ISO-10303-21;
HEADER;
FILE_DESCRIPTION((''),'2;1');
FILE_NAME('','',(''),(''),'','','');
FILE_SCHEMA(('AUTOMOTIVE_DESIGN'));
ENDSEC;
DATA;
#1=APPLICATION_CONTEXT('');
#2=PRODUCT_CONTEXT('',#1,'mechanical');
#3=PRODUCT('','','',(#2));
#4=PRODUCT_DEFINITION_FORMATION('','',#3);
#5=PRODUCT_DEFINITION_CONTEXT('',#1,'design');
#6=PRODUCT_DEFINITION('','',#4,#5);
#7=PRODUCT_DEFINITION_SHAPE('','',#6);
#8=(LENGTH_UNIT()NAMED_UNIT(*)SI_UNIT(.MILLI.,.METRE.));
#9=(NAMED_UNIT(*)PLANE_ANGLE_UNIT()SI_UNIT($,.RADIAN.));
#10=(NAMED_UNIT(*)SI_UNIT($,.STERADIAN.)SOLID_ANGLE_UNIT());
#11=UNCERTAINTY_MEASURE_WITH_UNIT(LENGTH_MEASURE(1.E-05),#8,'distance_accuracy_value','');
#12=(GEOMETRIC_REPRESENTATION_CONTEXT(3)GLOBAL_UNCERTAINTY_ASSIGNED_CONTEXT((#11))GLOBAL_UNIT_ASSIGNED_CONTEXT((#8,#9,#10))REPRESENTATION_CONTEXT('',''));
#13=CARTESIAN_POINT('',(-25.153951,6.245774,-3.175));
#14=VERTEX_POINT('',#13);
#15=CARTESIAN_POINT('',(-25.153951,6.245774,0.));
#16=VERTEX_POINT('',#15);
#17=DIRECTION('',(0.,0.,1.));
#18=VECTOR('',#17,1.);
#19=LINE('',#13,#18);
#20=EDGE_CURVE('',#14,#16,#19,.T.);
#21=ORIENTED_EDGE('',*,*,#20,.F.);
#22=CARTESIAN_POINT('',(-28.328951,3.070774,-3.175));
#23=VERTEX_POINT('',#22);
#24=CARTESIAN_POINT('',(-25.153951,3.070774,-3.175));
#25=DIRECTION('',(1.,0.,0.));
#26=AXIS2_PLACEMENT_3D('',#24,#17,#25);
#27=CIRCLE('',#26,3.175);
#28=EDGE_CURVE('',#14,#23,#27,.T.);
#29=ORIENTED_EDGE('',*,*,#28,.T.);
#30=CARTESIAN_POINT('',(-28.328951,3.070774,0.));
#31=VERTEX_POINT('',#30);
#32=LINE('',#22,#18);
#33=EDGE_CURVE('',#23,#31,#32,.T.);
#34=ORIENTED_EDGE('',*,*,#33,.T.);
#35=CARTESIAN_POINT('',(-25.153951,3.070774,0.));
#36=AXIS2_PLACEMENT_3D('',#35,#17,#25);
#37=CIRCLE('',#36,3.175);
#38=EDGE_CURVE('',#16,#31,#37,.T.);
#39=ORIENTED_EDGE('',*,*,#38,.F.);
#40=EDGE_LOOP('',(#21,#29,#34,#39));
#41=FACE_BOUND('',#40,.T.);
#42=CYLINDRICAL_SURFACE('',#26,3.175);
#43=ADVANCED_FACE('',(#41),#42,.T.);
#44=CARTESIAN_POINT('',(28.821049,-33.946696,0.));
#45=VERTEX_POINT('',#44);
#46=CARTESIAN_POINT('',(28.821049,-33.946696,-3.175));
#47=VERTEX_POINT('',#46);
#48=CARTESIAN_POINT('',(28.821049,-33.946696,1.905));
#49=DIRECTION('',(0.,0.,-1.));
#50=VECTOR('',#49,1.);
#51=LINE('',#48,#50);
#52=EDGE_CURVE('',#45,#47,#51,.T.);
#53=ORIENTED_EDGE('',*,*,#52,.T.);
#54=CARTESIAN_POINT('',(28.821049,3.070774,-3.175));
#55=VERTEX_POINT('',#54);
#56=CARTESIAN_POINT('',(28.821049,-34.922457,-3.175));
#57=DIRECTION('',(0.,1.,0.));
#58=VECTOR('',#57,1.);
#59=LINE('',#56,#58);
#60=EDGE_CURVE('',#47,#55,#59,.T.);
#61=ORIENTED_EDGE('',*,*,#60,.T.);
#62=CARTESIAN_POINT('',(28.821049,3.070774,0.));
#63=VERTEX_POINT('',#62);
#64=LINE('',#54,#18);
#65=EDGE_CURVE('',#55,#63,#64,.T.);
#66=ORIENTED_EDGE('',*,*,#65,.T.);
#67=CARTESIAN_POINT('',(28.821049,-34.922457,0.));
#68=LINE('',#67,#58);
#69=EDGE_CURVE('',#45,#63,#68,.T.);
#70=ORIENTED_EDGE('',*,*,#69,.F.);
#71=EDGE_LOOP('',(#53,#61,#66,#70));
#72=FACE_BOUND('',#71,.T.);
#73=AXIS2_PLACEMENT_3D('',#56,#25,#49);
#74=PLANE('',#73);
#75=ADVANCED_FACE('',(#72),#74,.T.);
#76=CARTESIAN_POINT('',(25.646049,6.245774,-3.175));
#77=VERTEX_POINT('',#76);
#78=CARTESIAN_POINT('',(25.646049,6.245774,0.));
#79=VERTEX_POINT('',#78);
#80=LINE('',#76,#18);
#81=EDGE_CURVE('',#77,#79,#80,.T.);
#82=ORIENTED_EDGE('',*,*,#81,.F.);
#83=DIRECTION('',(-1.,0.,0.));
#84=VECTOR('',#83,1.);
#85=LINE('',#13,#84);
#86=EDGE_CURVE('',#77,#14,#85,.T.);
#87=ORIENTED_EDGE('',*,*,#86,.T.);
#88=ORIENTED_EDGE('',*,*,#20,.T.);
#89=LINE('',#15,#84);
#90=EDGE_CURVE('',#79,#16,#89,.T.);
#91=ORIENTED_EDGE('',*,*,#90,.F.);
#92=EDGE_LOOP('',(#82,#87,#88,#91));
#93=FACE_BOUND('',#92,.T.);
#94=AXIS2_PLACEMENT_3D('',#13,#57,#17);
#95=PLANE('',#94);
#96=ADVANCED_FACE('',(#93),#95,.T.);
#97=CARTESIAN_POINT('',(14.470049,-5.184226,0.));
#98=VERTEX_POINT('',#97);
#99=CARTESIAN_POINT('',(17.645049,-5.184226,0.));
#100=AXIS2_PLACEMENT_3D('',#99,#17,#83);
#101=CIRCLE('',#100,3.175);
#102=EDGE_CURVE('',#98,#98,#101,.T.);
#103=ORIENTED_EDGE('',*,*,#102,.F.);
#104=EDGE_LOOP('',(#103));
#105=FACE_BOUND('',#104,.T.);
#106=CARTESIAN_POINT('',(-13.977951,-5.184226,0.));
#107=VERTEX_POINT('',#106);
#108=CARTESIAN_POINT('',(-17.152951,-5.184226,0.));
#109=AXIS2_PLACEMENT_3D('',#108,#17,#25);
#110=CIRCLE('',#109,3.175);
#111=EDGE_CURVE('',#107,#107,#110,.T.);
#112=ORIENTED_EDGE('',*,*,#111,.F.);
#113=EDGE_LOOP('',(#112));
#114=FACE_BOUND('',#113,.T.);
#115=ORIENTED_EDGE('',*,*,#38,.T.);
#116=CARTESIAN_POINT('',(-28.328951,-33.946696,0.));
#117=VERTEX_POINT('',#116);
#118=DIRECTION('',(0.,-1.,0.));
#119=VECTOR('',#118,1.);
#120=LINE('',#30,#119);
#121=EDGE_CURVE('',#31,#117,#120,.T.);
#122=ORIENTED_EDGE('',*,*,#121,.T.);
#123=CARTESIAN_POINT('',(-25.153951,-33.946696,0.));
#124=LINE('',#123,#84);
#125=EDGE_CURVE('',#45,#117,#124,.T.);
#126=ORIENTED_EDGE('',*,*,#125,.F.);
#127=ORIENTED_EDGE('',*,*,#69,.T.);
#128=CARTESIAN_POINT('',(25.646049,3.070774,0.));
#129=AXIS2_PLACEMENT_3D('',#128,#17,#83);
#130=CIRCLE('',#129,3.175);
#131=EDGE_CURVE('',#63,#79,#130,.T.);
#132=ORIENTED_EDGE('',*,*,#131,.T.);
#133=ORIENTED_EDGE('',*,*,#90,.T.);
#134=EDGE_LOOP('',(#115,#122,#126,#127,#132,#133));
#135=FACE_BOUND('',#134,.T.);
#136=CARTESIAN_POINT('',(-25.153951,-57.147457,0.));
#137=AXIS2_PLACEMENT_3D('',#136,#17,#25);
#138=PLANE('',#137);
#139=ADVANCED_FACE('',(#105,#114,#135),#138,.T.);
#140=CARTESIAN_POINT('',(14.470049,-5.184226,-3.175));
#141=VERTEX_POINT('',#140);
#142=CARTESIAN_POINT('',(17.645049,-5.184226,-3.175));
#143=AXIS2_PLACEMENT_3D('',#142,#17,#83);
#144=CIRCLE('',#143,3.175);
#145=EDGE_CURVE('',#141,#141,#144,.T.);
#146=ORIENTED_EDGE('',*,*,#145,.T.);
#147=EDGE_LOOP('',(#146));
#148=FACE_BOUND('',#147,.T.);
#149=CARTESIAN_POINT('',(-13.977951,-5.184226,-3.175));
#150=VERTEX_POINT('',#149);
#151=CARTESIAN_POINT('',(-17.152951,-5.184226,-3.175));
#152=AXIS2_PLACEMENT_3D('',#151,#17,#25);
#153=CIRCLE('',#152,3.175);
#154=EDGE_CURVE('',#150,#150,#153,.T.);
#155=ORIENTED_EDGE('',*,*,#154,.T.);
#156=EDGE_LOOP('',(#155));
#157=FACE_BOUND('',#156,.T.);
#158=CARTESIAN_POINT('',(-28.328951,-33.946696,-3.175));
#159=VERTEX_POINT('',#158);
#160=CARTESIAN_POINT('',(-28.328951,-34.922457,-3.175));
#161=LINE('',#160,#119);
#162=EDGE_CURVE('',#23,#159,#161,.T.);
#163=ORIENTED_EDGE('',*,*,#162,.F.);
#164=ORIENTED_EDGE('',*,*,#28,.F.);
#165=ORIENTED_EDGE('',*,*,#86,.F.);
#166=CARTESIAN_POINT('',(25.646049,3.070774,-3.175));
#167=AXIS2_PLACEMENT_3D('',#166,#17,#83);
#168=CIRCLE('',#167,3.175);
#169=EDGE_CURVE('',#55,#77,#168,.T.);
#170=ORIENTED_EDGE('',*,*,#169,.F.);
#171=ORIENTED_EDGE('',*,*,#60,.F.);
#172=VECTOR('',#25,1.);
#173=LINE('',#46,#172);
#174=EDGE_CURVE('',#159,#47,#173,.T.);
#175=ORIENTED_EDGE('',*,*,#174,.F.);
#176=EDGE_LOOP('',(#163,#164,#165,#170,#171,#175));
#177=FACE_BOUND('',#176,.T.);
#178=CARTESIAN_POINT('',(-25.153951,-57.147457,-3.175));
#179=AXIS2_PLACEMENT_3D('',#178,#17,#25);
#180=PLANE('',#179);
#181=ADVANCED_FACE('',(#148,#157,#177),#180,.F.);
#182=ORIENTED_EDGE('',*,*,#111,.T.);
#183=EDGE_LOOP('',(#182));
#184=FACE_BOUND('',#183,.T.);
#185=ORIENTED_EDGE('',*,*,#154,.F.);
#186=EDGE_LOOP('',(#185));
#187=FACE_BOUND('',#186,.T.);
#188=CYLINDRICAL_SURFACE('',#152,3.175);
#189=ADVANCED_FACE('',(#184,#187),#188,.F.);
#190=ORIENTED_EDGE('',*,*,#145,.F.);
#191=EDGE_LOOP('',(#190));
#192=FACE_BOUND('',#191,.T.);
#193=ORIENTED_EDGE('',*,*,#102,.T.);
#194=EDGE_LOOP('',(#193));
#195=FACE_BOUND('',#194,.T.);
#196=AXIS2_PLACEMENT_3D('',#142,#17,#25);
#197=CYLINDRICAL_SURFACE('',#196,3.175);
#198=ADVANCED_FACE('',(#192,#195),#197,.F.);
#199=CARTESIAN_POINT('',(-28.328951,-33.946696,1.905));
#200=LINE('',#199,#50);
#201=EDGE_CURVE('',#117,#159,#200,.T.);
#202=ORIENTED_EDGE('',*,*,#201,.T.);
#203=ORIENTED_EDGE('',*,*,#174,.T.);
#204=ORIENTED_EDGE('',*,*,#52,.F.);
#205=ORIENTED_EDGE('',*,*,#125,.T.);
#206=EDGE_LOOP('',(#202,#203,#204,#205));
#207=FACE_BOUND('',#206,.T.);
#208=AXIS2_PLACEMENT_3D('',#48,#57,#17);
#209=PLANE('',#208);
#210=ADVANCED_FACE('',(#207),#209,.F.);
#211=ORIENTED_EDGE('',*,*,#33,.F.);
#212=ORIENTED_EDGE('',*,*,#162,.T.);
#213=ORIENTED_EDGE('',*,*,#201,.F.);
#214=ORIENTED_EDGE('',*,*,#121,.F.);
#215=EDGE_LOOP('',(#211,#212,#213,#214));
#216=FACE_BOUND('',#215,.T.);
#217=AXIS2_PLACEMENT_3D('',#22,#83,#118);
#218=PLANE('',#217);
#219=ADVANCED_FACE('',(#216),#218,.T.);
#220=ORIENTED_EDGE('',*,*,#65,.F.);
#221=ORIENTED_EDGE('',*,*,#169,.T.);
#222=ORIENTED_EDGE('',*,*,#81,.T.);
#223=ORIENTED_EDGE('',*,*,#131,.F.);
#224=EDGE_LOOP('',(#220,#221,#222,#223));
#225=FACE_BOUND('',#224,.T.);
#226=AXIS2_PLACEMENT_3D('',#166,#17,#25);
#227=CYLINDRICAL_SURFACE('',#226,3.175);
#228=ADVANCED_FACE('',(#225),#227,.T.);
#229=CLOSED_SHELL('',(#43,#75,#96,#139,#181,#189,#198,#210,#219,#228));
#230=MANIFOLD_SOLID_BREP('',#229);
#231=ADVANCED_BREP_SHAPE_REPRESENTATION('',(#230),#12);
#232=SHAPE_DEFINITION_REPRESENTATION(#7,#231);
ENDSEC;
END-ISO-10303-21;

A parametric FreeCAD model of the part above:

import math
import FreeCAD as App
import Part
import Sketcher
Q = App.Units.Quantity

doc = App.newDocument("Part")
body = doc.addObject("PartDesign::Body", "Body")

sketch1 = body.newObject("Sketcher::SketchObject", "Sketch")
sketch1.AttachmentSupport = (doc.getObject("XY_Plane"), [""])
sketch1.MapMode = "FlatFace"
sketch1.addGeometry([
    Part.LineSegment(App.Vector(-28.3, 3.1, 0), App.Vector(-28.3, -57.1, 0)),
    Part.ArcOfCircle(Part.Circle(App.Vector(-25.2, -57.1, 0), App.Vector(0, 0, 1), 3.2), math.radians(-180), math.radians(-90)),
    Part.LineSegment(App.Vector(-25.2, -60.3, 0), App.Vector(25.6, -60.3, 0)),
    Part.ArcOfCircle(Part.Circle(App.Vector(25.6, -57.1, 0), App.Vector(0, 0, 1), 3.2), math.radians(-90), math.radians(0)),
    Part.LineSegment(App.Vector(28.8, -57.1, 0), App.Vector(28.8, 3.1, 0)),
    Part.ArcOfCircle(Part.Circle(App.Vector(25.6, 3.1, 0), App.Vector(0, 0, 1), 3.2), math.radians(0), math.radians(90)),
    Part.LineSegment(App.Vector(25.6, 6.2, 0), App.Vector(-25.2, 6.2, 0)),
    Part.ArcOfCircle(Part.Circle(App.Vector(-25.2, 3.1, 0), App.Vector(0, 0, 1), 3.2), math.radians(90), math.radians(180)),
], False)
sketch1.addConstraint([
    Sketcher.Constraint("Tangent", 0, 2, 1, 1),
    Sketcher.Constraint("Tangent", 1, 2, 2, 1),
    Sketcher.Constraint("Tangent", 2, 2, 3, 1),
    Sketcher.Constraint("Tangent", 3, 2, 4, 1),
    Sketcher.Constraint("Tangent", 4, 2, 5, 1),
    Sketcher.Constraint("Tangent", 5, 2, 6, 1),
    Sketcher.Constraint("Tangent", 6, 2, 7, 1),
    Sketcher.Constraint("Tangent", 7, 2, 0, 1),
    Sketcher.Constraint("Vertical", 0),
    Sketcher.Constraint("Horizontal", 2),
    Sketcher.Constraint("Vertical", 4),
    Sketcher.Constraint("Horizontal", 6),
    Sketcher.Constraint("Equal", 1, 3),
    Sketcher.Constraint("Equal", 3, 5),
    Sketcher.Constraint("Equal", 5, 7),
    Sketcher.Constraint("DistanceX", 2, 1, 2, 2, Q("2 in")),
    Sketcher.Constraint("Radius", 1, Q("0.125 in")),
    Sketcher.Constraint("DistanceY", 1, 3, -1, 1, Q("2.2498999 in")),
    Sketcher.Constraint("DistanceY", 0, 2, 0, 1, 60.21823),
    Sketcher.Constraint("DistanceX", 1, 3, -1, 1, 25.153951),
])
pad1 = body.newObject("PartDesign::Pad", "Pad")
pad1.Profile = sketch1
pad1.Length = Q("0.125 in")
pad1.Reversed = True

sketch2 = body.newObject("Sketcher::SketchObject", "Sketch001")
sketch2.AttachmentSupport = (doc.getObject("XY_Plane"), [""])
sketch2.MapMode = "FlatFace"
sketch2.addGeometry([
    Part.Circle(App.Vector(-17.2, -5.2, 0), App.Vector(0, 0, 1), 3.2),
    Part.Circle(App.Vector(17.6, -5.2, 0), App.Vector(0, 0, 1), 3.2),
], False)
sketch2.addConstraint([
    Sketcher.Constraint("Equal", 0, 1),
    Sketcher.Constraint("Horizontal", 0, 3, 1, 3),
    Sketcher.Constraint("Diameter", 0, Q("0.25 in")),
    Sketcher.Constraint("DistanceX", 0, 3, 1, 3, Q("1.37 in")),
    Sketcher.Constraint("DistanceX", 0, 3, -1, 1, 17.152951),
    Sketcher.Constraint("DistanceY", 0, 3, -1, 1, 5.184226),
])
pocket1 = body.newObject("PartDesign::Pocket", "Pocket")
pocket1.Profile = sketch2
pocket1.Type = "ThroughAll"

sketch3 = body.newObject("Sketcher::SketchObject", "Sketch002")
sketch3.AttachmentSupport = (doc.getObject("XY_Plane"), [""])
sketch3.MapMode = "FlatFace"
sketch3.AttachmentOffset = App.Placement(App.Vector(0, 0, -0.125 * 25.4), App.Rotation())
sketch3.addGeometry([
    Part.LineSegment(App.Vector(29, -34, 0), App.Vector(29, -63, 0)),
    Part.LineSegment(App.Vector(29, -63, 0), App.Vector(-28, -63, 0)),
    Part.LineSegment(App.Vector(-28, -63, 0), App.Vector(-28, -34, 0)),
    Part.LineSegment(App.Vector(-28, -34, 0), App.Vector(29, -34, 0)),
], False)
sketch3.addConstraint([
    Sketcher.Constraint("Coincident", 0, 2, 1, 1),
    Sketcher.Constraint("Coincident", 1, 2, 2, 1),
    Sketcher.Constraint("Coincident", 2, 2, 3, 1),
    Sketcher.Constraint("Coincident", 3, 2, 0, 1),
    Sketcher.Constraint("Vertical", 0),
    Sketcher.Constraint("Horizontal", 1),
    Sketcher.Constraint("Vertical", 2),
    Sketcher.Constraint("Horizontal", 3),
    Sketcher.Constraint("DistanceX", 1, 2, 1, 1, Q("2.25 in")),
    Sketcher.Constraint("DistanceY", 0, 2, 0, 1, 29.175718),
    Sketcher.Constraint("DistanceX", -1, 1, 0, 2, 28.821049),
    Sketcher.Constraint("DistanceY", 0, 2, -1, 1, 63.122414),
])
pocket2 = body.newObject("PartDesign::Pocket", "Pocket001")
pocket2.Profile = sketch3
pocket2.Length = Q("0.2 in")
pocket2.Reversed = True

doc.recompute()
